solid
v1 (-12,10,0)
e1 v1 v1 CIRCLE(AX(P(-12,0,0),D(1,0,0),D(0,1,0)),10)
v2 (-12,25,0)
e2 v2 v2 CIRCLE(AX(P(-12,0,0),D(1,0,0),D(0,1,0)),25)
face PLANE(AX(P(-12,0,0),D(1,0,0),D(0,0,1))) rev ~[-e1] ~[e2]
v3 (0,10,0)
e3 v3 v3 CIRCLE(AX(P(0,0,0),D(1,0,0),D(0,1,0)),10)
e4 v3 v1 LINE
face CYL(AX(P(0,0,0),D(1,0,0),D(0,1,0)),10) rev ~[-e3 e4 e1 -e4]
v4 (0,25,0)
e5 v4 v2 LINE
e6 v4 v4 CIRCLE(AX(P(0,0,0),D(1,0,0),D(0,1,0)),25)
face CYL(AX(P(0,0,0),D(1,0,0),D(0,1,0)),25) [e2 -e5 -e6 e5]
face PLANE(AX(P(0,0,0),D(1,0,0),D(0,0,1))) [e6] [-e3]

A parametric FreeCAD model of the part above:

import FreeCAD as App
import Part
import Sketcher
from FreeCAD import Vector

doc = App.newDocument("Part")
params = doc.addObject("Spreadsheet::Sheet", "Params")
for row, (alias, value) in enumerate([
    ("sketch1_diameter", "50 mm"),
    ("pad1_length", "12 mm"),
    ("sketch2_diameter", "20 mm"),
], start=1):
    params.set(f"A{row}", alias)
    params.set(f"B{row}", "=" + value)
    params.setAlias(f"B{row}", alias)

body = doc.addObject("PartDesign::Body", "Body")

sketch1 = doc.addObject("Sketcher::SketchObject", "Sketch")
body.addObject(sketch1)
sketch1.AttachmentSupport = (doc.YZ_Plane, [""])
sketch1.MapMode = "FlatFace"
sketch1.addGeometry(Part.Circle(Vector(0, 0, 0), Vector(0, 0, 1), 25), False)
sketch1.addConstraint([
    Sketcher.Constraint("Coincident", 0, 3, -1, 1),
    Sketcher.Constraint("Diameter", 0, 50.0),
])
sketch1.setExpression("Constraints[1]", "Params.sketch1_diameter")
pad1 = doc.addObject("PartDesign::Pad", "Pad")
body.addObject(pad1)
pad1.Profile = sketch1
pad1.setExpression("Length", "Params.pad1_length")
pad1.Reversed = True

sketch2 = doc.addObject("Sketcher::SketchObject", "Sketch001")
body.addObject(sketch2)
sketch2.AttachmentSupport = (doc.YZ_Plane, [""])
sketch2.MapMode = "FlatFace"
sketch2.addGeometry(Part.Circle(Vector(0, 0, 0), Vector(0, 0, 1), 10), False)
sketch2.addConstraint([
    Sketcher.Constraint("Coincident", 0, 3, -1, 1),
    Sketcher.Constraint("Diameter", 0, 20.0),
])
sketch2.setExpression("Constraints[1]", "Params.sketch2_diameter")
pocket1 = doc.addObject("PartDesign::Pocket", "Pocket")
body.addObject(pocket1)
pocket1.Profile = sketch2
pocket1.Type = "UpToFirst"

doc.recompute()
